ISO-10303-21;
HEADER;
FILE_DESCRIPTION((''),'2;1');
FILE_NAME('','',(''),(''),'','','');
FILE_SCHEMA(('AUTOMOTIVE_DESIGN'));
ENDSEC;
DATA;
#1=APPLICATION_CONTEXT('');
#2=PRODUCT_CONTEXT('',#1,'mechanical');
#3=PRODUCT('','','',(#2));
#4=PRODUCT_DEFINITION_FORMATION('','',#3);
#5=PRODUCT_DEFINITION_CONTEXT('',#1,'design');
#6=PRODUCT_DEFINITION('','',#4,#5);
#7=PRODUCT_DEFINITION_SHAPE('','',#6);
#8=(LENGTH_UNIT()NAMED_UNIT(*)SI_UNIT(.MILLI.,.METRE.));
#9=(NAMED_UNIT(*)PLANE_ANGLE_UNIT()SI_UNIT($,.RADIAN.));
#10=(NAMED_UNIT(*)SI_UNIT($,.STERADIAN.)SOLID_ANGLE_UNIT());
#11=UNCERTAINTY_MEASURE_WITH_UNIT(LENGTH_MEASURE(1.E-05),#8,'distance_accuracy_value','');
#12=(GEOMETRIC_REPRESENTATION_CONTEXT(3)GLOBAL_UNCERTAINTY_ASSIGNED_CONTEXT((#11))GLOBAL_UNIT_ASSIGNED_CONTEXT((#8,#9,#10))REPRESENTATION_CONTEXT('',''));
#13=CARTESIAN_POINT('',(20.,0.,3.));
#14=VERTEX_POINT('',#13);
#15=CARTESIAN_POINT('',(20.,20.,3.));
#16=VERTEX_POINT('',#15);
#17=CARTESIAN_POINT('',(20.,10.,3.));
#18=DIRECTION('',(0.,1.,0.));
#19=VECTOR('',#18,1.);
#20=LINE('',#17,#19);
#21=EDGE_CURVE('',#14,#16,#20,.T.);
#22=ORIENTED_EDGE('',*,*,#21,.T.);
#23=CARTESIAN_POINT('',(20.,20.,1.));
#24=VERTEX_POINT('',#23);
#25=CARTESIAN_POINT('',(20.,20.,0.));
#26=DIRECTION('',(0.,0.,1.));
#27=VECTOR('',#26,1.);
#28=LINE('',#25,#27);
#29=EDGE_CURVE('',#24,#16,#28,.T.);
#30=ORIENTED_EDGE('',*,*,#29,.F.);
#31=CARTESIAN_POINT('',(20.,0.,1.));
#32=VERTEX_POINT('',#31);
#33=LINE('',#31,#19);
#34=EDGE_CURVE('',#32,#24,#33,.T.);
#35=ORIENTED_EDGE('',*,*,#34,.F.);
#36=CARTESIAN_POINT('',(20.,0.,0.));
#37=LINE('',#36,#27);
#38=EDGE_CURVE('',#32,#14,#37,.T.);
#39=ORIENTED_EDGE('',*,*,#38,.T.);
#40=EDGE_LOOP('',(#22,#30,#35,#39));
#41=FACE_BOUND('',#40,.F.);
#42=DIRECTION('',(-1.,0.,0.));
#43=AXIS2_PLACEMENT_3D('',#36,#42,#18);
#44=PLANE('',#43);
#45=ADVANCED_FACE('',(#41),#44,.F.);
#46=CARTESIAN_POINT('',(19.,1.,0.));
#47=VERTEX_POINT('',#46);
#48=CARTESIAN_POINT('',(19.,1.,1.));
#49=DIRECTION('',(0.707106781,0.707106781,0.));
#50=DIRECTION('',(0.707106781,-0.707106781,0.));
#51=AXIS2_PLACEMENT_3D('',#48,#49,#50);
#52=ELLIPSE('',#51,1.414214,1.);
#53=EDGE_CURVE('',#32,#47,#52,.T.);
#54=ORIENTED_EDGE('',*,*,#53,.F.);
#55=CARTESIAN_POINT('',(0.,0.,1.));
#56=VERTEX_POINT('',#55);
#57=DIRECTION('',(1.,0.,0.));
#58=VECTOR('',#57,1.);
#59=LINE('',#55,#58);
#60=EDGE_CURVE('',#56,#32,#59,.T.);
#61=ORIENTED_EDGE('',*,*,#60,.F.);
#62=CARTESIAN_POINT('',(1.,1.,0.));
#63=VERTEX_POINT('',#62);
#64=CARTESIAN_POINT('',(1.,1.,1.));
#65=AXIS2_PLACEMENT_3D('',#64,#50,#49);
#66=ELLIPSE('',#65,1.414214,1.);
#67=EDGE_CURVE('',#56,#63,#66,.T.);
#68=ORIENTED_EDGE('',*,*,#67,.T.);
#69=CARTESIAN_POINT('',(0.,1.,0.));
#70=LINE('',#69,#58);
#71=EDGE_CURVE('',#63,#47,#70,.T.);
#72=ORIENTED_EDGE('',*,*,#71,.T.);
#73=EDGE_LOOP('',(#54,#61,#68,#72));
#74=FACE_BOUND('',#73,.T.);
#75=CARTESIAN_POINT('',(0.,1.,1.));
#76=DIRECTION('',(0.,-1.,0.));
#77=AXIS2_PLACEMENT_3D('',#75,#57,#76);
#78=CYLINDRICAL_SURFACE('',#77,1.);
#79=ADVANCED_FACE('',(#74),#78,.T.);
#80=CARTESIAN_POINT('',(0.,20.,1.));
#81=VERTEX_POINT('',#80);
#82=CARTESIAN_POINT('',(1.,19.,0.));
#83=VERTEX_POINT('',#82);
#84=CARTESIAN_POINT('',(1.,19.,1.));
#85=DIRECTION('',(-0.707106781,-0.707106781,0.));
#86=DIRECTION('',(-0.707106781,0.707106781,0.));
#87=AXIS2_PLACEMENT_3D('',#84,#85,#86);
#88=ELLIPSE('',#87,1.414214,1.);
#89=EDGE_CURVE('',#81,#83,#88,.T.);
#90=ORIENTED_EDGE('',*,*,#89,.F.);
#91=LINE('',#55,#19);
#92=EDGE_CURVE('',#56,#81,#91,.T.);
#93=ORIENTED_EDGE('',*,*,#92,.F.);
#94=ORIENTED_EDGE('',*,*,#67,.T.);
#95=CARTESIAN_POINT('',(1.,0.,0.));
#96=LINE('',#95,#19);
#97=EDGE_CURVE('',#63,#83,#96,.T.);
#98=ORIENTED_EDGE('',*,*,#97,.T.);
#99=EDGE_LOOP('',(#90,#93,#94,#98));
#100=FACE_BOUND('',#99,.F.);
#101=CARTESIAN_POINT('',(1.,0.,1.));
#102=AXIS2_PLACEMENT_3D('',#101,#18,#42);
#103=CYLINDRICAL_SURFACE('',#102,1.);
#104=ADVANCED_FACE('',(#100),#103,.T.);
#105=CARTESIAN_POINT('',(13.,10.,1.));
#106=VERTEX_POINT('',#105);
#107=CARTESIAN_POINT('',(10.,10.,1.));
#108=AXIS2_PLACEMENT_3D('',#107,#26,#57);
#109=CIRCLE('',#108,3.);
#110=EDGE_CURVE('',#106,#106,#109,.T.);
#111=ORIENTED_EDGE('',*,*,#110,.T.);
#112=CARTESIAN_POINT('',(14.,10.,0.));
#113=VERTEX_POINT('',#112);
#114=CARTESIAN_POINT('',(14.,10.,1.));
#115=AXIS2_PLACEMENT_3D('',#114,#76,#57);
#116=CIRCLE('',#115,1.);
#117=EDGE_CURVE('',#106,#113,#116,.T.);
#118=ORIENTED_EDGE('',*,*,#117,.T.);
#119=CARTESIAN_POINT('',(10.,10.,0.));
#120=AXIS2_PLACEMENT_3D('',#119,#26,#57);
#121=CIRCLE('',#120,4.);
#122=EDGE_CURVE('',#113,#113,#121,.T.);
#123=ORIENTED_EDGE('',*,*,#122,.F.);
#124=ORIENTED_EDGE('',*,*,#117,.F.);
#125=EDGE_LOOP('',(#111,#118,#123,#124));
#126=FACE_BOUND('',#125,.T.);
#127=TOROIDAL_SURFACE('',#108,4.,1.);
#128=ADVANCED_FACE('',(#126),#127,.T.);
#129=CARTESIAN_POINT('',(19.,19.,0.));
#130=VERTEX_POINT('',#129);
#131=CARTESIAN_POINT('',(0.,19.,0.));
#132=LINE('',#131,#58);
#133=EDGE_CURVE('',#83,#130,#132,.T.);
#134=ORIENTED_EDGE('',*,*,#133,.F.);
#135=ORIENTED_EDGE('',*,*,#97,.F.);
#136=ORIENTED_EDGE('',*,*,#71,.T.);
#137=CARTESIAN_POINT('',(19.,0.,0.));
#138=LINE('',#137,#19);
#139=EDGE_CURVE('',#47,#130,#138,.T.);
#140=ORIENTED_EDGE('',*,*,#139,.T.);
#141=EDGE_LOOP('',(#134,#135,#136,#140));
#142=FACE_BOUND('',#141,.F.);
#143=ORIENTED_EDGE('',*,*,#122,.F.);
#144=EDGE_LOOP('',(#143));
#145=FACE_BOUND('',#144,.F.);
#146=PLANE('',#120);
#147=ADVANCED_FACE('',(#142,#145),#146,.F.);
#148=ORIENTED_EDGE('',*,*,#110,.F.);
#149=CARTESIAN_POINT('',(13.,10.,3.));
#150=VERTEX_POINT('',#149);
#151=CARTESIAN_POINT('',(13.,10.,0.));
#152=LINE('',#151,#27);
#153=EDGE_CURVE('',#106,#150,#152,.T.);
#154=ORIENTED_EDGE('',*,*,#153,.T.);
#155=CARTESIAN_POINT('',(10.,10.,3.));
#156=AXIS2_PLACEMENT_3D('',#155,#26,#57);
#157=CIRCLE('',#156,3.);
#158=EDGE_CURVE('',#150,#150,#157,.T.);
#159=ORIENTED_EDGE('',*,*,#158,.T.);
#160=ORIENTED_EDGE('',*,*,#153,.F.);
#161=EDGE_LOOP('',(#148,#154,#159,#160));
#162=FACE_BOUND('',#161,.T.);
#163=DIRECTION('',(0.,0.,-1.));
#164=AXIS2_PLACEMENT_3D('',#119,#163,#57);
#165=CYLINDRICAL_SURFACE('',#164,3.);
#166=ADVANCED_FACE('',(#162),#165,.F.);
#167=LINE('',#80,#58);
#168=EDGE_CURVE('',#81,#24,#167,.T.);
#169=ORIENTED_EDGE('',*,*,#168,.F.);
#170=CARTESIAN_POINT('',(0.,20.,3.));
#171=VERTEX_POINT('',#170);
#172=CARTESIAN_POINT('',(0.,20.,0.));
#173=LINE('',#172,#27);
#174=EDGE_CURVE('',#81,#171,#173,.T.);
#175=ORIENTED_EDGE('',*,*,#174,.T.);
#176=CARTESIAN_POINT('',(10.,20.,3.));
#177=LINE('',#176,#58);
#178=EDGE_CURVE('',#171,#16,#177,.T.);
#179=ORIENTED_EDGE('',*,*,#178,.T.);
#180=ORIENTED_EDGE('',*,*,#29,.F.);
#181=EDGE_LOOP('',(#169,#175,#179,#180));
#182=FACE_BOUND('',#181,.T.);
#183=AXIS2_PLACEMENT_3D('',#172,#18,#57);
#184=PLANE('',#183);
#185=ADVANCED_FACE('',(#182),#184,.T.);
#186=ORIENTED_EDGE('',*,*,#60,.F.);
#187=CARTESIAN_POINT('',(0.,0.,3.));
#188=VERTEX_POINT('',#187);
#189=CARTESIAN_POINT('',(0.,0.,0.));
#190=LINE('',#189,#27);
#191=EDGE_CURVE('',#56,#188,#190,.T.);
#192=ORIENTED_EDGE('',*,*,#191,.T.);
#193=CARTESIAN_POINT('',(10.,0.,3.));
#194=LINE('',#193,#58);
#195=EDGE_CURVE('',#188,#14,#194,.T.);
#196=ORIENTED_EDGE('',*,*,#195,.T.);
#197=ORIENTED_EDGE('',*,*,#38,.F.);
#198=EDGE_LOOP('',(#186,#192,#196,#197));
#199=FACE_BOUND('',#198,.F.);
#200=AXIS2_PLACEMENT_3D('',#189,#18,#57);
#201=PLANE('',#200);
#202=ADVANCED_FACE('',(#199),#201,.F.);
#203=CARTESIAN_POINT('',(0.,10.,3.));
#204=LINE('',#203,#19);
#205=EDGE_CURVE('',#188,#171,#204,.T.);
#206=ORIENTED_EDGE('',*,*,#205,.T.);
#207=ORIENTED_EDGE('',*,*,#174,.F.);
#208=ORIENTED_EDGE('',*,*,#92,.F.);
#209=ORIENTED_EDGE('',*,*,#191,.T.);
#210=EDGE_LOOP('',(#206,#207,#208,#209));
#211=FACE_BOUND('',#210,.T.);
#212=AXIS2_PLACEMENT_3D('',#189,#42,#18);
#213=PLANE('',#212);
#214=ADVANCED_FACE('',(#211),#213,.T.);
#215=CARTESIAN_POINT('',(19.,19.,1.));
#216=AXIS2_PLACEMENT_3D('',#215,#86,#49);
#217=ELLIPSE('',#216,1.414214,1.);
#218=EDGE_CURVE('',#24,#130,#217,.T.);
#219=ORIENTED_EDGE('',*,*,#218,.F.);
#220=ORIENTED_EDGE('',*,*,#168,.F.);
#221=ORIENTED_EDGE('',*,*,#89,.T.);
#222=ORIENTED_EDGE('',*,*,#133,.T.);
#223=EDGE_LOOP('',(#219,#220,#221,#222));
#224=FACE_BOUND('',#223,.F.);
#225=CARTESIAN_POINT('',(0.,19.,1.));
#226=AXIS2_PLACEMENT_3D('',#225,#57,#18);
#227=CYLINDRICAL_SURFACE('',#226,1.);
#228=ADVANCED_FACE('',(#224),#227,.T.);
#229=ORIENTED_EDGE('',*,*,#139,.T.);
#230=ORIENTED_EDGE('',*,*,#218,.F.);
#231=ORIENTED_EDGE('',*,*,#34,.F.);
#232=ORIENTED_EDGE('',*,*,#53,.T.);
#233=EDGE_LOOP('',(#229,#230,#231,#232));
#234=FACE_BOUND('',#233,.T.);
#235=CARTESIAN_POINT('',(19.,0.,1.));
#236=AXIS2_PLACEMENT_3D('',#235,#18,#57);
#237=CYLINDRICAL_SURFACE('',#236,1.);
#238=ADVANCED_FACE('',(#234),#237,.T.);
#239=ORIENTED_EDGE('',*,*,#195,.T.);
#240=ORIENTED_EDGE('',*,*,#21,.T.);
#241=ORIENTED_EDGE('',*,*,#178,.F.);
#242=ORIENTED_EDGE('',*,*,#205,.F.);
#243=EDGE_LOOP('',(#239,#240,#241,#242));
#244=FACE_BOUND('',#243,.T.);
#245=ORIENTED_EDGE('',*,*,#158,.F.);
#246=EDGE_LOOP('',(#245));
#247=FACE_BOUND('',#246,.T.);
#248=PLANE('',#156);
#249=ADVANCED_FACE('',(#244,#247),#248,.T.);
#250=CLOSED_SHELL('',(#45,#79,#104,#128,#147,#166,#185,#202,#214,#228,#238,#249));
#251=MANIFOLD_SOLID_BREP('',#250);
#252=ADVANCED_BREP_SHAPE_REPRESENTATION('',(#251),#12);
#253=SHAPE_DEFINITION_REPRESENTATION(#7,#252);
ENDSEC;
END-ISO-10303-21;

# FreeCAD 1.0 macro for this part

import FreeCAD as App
import Part
import Sketcher


def edges_at(feature, points):
    """Names of the edges that pass closest to the given points."""
    edges = feature.Shape.Edges
    near = lambda p: min(range(len(edges)), key=lambda i: edges[i].distToShape(Part.Vertex(*p))[0])
    return sorted({f"Edge{near(p) + 1}" for p in points})


def add_polygon(sketch, points):
    """Adds a closed chain of lines whose ends are joined by coincident constraints."""
    first, n = sketch.GeometryCount, len(points)
    for a, b in zip(points, points[1:] + points[:1]):
        sketch.addGeometry(Part.LineSegment(App.Vector(*a, 0), App.Vector(*b, 0)), False)
    for i in range(n):
        sketch.addConstraint(Sketcher.Constraint("Coincident", first + i, 2, first + (i + 1) % n, 1))

doc = App.newDocument("Part")
body = doc.addObject("PartDesign::Body", "Body")

sketch1 = body.newObject("Sketcher::SketchObject", "Sketch")
sketch1.AttachmentSupport = (doc.getObject("XY_Plane"), [""])
sketch1.MapMode = "FlatFace"
add_polygon(sketch1, [(0, 20), (0, 0), (20, 0), (20, 20)])
sketch1.addGeometry(Part.Circle(App.Vector(10, 10, 0), App.Vector(0, 0, 1), 3), False)
sketch1.addConstraint([
    Sketcher.Constraint("Vertical", 0),
    Sketcher.Constraint("Horizontal", 1),
    Sketcher.Constraint("Vertical", 2),
    Sketcher.Constraint("Horizontal", 3),
    Sketcher.Constraint("Coincident", 0, 2, -1, 1),
    Sketcher.Constraint("Equal", 3, 0),
    Sketcher.Constraint("Diameter", 4, 6.0),
    Sketcher.Constraint("DistanceX", 1, 1, 1, 2, 20.0),
    Sketcher.Constraint("DistanceX", -1, 1, 4, 3, 10.0),
    Sketcher.Constraint("DistanceY", -1, 1, 4, 3, 10.0),
])
pad1 = body.newObject("PartDesign::Pad", "Pad")
pad1.Profile = sketch1
pad1.Length = 3
doc.recompute()

fillet = body.newObject("PartDesign::Fillet", "Fillet")
fillet.Base = (pad1, edges_at(pad1, [
    (0, 10, 0),
    (10, 0, 0),
    (20, 10, 0),
    (10, 20, 0),
    (7, 10, 0),
]))
fillet.Radius = 1

doc.recompute()
